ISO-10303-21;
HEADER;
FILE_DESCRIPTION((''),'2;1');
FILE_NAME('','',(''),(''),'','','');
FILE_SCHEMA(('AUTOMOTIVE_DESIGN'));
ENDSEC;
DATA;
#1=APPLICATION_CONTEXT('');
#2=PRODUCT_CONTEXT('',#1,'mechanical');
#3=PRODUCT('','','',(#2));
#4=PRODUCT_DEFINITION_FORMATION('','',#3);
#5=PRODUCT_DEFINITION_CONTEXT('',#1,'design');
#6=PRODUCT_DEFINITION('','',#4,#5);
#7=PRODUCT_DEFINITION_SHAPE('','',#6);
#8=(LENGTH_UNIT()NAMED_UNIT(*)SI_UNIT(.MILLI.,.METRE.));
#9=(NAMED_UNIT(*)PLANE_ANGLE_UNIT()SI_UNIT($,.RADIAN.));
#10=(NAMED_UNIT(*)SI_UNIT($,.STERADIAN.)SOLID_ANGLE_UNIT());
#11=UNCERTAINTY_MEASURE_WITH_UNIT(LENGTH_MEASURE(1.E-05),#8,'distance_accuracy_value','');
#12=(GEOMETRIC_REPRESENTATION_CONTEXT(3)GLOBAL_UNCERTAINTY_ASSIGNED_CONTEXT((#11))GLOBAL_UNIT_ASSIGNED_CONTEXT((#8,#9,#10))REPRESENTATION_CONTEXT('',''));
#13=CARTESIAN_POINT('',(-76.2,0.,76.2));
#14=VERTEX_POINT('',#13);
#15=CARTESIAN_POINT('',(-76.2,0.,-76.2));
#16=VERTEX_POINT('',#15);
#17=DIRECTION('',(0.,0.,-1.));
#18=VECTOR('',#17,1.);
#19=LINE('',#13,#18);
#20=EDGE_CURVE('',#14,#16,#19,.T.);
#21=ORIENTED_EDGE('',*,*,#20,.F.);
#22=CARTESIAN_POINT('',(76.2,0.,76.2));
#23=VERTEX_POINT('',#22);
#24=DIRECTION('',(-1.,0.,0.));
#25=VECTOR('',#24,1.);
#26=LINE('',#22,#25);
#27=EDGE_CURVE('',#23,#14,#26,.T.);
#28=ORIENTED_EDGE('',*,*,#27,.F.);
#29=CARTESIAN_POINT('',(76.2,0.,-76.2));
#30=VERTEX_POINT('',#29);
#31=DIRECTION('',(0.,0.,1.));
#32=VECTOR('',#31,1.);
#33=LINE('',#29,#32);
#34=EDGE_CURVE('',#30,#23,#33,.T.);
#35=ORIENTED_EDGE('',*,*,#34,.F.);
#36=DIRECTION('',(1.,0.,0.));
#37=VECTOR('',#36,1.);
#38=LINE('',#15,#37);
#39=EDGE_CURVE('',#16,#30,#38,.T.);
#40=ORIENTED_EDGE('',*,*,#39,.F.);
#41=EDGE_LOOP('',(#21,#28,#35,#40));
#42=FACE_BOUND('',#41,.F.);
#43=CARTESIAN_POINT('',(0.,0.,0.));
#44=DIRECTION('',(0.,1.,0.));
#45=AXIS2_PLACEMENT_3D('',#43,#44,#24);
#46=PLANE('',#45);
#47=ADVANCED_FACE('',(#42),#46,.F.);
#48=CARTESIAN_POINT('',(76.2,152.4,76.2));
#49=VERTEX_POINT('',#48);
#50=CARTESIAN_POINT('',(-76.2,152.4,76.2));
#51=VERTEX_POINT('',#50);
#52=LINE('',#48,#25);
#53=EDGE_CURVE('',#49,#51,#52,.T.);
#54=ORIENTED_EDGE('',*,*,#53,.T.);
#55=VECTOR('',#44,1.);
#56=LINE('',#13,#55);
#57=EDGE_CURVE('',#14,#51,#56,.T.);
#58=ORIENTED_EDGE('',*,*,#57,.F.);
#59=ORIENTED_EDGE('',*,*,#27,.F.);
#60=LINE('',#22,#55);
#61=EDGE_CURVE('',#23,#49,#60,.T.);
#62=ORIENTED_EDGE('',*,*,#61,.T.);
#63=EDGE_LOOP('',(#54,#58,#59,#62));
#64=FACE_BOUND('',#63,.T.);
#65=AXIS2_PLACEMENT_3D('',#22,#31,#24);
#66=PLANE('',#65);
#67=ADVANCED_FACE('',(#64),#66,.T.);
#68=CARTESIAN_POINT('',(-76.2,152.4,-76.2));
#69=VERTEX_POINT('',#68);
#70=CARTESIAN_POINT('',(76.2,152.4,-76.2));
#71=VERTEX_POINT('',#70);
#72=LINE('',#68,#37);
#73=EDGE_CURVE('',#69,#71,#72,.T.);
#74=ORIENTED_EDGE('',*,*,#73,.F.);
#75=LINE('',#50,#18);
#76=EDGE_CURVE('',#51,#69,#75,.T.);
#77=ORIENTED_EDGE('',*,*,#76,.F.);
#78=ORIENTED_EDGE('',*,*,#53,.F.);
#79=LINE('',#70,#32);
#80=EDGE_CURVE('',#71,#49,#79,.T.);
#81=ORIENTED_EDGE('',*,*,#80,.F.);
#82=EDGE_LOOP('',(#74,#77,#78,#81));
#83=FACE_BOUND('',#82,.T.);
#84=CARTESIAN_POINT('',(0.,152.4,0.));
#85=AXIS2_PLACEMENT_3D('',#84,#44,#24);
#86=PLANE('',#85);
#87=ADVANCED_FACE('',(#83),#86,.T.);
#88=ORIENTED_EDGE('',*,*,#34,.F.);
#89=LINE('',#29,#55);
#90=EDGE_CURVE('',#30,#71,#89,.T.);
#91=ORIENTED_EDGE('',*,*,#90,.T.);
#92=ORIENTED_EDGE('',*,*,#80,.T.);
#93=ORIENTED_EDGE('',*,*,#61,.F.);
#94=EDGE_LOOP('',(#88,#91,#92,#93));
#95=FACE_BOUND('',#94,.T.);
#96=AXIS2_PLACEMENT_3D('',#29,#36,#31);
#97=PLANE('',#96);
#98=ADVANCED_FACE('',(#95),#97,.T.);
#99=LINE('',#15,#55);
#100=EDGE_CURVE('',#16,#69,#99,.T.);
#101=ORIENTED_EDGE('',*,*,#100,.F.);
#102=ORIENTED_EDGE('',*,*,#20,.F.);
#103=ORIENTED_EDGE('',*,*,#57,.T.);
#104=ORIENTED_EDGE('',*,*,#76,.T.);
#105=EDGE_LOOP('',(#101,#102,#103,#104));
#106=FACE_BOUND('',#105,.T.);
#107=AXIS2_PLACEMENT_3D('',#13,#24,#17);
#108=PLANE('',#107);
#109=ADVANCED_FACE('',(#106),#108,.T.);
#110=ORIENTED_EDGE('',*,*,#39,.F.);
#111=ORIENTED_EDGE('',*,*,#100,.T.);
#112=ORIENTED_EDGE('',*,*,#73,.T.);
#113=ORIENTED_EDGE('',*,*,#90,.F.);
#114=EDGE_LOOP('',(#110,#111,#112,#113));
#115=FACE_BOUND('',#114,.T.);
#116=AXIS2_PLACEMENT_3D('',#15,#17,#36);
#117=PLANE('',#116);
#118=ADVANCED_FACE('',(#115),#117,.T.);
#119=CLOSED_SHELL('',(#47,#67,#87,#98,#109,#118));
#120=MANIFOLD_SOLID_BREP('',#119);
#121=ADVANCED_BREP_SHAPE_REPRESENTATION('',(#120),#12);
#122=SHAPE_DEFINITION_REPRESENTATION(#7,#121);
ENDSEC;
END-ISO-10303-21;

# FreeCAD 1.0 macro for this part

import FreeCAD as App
import Part
import Sketcher

V = App.Vector
Q = App.Units.Quantity

doc = App.newDocument("Part")
body = doc.addObject("PartDesign::Body", "Body")

# Sketch on XZ plane
sketch1 = body.newObject("Sketcher::SketchObject", "Sketch")
sketch1.AttachmentSupport = (doc.getObject("XZ_Plane"), [""])
sketch1.MapMode = "FlatFace"
sketch1.addGeometry([
    Part.LineSegment(V(-76.2, 76.2, 0), V(76.2, 76.2, 0)),
    Part.LineSegment(V(76.2, 76.2, 0), V(76.2, -76.2, 0)),
    Part.LineSegment(V(76.2, -76.2, 0), V(-76.2, -76.2, 0)),
    Part.LineSegment(V(-76.2, -76.2, 0), V(-76.2, 76.2, 0)),
], False)
sketch1.addConstraint([
    Sketcher.Constraint("Coincident", 0, 2, 1, 1),
    Sketcher.Constraint("Coincident", 1, 2, 2, 1),
    Sketcher.Constraint("Coincident", 2, 2, 3, 1),
    Sketcher.Constraint("Coincident", 3, 2, 0, 1),
    Sketcher.Constraint("Horizontal", 0),
    Sketcher.Constraint("Vertical", 1),
    Sketcher.Constraint("Horizontal", 2),
    Sketcher.Constraint("Vertical", 3),
    Sketcher.Constraint("Symmetric", 0, 2, 2, 2, -1, 1),
    Sketcher.Constraint("Equal", 2, 1),
    Sketcher.Constraint("DistanceX", 0, 1, 0, 2, Q("6 in")),
])
pad1 = body.newObject("PartDesign::Pad", "Pad")
pad1.Profile = sketch1
pad1.Length = Q("6 in")
pad1.Reversed = True

doc.recompute()
